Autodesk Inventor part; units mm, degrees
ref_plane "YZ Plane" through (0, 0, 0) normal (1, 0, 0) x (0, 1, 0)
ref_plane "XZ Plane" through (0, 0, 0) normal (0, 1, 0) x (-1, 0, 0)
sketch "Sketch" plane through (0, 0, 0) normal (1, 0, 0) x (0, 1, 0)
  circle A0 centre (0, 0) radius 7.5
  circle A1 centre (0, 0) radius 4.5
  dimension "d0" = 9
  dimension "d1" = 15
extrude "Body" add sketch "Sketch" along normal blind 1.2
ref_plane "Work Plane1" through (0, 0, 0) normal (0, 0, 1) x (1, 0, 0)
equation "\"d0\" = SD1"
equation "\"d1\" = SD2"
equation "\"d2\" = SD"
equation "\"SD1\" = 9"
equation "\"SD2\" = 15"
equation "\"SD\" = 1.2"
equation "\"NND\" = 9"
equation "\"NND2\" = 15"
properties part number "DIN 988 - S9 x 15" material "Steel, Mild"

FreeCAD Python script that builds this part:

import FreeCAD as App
import Part
import Sketcher
from FreeCAD import Vector

doc = App.newDocument("Part")
body = doc.addObject("PartDesign::Body", "Body")

# Sketch on YZ plane
sketch1 = body.newObject("Sketcher::SketchObject", "Sketch")
sketch1.AttachmentSupport = (doc.getObject("YZ_Plane"), [""])
sketch1.MapMode = "FlatFace"
sketch1.addGeometry(Part.Circle(Vector(0, 0, 0), Vector(0, 0, 1), 7.5), False)
sketch1.addGeometry(Part.Circle(Vector(0, 0, 0), Vector(0, 0, 1), 4.5), False)
sketch1.addConstraint(Sketcher.Constraint("Coincident", 0, 3, -1, 1))
sketch1.addConstraint(Sketcher.Constraint("Coincident", 1, 3, -1, 1))
sketch1.addConstraint(Sketcher.Constraint("Diameter", 0, 15.0))
sketch1.addConstraint(Sketcher.Constraint("Diameter", 1, 9.0))
pad1 = body.newObject("PartDesign::Pad", "Pad")
pad1.Profile = sketch1
pad1.Length = 1.2

doc.recompute()
